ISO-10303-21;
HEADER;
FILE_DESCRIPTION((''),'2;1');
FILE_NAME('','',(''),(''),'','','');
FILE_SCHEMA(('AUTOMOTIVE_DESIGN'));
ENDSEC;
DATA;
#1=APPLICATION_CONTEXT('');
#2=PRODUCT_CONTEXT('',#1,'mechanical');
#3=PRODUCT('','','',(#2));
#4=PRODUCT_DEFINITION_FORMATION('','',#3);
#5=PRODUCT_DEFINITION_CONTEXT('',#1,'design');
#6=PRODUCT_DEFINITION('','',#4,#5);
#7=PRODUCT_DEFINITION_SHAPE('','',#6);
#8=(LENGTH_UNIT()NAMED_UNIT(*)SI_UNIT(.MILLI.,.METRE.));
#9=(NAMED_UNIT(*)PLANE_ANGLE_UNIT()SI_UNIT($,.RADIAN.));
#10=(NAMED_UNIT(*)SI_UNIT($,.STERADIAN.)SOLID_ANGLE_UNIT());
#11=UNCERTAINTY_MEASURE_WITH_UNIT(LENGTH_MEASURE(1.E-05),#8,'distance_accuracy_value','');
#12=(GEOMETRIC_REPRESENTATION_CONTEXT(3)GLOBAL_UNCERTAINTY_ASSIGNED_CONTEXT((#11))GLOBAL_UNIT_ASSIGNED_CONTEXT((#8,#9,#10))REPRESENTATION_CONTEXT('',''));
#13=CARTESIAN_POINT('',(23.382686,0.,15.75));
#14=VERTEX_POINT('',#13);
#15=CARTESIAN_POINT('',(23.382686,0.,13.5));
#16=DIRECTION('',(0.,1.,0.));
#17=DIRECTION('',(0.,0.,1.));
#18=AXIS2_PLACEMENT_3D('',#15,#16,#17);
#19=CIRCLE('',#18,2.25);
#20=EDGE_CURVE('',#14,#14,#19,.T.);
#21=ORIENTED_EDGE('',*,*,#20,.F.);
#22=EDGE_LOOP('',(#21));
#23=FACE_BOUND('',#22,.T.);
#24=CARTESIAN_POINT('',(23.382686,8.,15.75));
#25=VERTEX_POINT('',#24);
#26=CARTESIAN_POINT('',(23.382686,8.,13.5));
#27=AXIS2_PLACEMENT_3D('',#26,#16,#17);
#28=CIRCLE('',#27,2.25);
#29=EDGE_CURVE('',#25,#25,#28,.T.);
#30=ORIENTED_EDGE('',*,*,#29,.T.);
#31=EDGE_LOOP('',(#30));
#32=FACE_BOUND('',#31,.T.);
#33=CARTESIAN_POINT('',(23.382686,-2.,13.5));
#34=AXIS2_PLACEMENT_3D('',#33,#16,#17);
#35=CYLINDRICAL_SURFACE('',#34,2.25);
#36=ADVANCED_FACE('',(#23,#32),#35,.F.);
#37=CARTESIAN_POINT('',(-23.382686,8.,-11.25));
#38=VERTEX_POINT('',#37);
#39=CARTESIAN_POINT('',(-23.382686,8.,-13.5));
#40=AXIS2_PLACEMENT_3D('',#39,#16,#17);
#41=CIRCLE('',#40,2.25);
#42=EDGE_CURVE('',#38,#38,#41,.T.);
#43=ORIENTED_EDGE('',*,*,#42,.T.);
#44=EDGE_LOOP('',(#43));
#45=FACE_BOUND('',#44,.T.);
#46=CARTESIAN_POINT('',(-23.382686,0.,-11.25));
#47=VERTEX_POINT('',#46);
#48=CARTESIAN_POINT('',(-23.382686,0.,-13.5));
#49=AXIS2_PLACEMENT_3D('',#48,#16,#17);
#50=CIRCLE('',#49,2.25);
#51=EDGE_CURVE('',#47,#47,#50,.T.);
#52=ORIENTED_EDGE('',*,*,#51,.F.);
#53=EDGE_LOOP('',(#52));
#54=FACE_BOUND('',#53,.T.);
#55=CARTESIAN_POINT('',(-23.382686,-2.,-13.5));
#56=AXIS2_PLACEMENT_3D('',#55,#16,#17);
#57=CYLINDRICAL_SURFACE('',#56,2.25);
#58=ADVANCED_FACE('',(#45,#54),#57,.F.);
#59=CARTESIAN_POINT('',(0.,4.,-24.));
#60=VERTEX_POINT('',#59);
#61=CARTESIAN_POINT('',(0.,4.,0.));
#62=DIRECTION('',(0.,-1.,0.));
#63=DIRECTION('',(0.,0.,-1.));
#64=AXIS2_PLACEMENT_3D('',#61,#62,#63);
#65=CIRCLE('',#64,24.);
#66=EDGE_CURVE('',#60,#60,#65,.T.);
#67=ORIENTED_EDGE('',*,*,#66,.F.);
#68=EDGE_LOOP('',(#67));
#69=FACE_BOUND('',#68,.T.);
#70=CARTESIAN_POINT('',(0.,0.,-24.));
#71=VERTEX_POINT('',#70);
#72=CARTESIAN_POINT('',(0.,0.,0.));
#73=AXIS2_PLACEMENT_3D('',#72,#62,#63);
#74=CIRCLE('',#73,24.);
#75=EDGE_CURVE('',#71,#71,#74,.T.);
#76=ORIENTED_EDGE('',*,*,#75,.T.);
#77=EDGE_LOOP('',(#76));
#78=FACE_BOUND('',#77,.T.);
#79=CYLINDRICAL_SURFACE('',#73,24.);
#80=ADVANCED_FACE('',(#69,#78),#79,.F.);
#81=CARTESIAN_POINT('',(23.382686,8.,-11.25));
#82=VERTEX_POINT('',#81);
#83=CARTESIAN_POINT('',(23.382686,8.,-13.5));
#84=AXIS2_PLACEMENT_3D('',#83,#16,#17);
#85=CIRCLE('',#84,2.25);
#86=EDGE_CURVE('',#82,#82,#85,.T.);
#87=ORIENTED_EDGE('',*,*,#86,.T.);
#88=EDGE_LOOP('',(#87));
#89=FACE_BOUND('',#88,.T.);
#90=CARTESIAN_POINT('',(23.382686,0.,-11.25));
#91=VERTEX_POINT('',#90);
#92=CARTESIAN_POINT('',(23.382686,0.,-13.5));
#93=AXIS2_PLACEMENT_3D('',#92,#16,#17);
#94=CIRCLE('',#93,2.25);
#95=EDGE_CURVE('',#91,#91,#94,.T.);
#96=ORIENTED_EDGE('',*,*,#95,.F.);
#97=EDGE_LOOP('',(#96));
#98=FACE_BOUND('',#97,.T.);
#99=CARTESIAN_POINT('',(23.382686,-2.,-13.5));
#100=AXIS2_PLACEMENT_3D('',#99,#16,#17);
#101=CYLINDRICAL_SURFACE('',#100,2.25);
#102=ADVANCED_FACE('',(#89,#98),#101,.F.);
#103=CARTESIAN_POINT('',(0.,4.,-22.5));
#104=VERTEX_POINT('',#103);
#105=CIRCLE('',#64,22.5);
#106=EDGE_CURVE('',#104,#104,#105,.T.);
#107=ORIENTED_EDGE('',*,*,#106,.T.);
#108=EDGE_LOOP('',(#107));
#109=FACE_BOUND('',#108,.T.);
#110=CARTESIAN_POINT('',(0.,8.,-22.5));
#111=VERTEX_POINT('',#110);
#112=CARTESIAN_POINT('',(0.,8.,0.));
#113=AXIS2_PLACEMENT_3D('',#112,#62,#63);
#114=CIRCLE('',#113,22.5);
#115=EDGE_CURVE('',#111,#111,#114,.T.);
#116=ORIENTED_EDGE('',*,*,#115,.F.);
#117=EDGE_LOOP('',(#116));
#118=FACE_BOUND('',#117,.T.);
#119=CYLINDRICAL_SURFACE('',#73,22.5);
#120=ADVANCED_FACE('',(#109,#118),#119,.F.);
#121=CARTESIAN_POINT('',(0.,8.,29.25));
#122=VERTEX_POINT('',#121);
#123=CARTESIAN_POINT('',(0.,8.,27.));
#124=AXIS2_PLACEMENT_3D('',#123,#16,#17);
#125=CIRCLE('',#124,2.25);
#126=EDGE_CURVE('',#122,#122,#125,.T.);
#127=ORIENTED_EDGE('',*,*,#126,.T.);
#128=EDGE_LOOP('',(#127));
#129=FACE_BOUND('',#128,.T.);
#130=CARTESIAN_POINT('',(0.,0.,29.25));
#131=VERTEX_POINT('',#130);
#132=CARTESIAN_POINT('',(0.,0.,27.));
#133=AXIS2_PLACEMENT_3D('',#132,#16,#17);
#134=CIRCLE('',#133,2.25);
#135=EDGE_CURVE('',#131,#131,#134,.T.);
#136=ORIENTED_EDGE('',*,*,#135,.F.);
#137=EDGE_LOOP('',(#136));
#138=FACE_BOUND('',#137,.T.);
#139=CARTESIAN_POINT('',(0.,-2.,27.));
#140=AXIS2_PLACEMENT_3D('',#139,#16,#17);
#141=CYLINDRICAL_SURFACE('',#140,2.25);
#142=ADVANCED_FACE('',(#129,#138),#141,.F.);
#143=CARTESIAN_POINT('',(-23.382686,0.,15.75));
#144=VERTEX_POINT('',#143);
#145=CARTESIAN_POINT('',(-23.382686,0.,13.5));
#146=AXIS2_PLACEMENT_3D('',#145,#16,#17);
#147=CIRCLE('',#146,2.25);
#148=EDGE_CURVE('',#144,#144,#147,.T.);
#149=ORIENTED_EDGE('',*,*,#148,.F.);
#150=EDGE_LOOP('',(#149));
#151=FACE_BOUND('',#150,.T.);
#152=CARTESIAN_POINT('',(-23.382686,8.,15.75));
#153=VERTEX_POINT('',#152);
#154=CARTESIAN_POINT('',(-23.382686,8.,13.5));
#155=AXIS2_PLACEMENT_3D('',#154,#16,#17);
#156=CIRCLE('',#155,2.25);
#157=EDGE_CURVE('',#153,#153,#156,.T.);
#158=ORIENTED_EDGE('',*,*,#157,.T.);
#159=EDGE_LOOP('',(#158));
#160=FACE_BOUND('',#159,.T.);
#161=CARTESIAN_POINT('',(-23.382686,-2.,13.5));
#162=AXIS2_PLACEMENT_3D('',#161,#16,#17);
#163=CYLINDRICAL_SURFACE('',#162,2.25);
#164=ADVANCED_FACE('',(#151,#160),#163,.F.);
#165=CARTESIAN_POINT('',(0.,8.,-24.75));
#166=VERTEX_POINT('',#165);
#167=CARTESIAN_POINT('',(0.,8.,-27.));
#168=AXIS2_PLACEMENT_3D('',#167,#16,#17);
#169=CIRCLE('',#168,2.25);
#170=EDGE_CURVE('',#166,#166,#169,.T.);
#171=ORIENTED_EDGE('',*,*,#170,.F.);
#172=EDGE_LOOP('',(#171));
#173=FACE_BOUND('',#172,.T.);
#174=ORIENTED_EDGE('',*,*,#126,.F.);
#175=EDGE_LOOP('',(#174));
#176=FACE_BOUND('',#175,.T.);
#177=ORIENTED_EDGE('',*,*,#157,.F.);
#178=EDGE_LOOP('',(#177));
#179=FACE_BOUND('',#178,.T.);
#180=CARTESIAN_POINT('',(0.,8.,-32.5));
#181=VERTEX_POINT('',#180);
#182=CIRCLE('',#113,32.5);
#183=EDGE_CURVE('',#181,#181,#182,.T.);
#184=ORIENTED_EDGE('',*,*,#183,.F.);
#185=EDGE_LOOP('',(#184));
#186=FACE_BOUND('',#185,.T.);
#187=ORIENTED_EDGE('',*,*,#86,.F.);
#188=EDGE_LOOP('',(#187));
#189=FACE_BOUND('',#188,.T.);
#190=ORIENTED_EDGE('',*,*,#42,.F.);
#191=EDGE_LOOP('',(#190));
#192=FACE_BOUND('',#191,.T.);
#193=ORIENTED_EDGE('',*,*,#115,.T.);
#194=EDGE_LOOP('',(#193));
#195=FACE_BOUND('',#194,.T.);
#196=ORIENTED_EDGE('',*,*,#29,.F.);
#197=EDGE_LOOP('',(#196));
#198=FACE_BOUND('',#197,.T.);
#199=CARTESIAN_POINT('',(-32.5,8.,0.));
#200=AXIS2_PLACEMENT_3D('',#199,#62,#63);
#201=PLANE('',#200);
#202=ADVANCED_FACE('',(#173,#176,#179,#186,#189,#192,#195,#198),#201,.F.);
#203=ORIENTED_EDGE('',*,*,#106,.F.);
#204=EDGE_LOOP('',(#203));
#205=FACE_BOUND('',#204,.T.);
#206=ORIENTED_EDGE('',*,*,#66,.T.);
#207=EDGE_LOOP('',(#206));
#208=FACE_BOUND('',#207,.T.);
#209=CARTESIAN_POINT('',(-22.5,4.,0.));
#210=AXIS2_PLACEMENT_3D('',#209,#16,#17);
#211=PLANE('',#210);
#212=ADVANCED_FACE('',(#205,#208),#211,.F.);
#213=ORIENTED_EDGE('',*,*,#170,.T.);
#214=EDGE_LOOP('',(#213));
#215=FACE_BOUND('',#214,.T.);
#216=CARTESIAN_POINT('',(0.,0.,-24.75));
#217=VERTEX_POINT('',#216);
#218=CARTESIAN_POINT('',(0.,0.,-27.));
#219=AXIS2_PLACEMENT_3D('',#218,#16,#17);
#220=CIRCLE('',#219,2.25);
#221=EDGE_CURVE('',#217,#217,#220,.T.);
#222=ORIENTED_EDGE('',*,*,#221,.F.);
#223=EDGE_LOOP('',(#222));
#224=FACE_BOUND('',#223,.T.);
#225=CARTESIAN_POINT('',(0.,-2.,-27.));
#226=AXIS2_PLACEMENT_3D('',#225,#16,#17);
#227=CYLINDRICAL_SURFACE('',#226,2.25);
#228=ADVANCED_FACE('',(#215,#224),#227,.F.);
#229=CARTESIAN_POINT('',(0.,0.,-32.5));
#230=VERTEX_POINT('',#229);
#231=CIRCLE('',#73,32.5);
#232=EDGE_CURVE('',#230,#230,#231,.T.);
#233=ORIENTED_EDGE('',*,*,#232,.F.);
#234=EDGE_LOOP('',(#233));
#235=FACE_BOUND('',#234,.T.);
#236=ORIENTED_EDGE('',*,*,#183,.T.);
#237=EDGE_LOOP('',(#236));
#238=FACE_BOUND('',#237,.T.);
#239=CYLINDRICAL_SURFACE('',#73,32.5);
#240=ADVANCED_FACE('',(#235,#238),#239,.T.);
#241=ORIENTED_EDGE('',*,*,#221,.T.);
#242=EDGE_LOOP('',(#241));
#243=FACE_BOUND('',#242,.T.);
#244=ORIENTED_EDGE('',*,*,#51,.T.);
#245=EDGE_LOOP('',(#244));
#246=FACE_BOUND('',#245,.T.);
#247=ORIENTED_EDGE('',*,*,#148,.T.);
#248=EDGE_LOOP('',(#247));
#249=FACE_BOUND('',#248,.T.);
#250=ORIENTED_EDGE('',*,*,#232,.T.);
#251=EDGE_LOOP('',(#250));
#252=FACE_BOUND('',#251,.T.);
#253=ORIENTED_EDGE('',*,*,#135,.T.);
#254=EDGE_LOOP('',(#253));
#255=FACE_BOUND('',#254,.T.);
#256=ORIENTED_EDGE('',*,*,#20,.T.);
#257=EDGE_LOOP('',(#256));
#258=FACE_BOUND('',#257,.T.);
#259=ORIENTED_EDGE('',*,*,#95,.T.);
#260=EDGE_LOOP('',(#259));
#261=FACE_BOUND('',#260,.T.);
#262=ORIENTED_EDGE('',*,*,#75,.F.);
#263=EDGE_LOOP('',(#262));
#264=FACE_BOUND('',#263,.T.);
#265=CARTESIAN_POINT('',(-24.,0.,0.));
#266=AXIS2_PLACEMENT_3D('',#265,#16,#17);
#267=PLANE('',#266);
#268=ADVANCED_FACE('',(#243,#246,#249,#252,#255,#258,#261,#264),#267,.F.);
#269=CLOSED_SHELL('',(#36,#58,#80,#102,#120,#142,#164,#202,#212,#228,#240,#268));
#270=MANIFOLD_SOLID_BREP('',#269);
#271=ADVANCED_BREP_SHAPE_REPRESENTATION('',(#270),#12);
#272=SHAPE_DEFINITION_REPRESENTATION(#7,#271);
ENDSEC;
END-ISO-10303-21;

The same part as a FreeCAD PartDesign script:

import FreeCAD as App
import Part
import Sketcher
Q = App.Units.Quantity

doc = App.newDocument("Part")
params = doc.addObject("Spreadsheet::Sheet", "Params")
for row, (alias, value) in enumerate([
    ("sketch1_width", "10 mm"),
    ("sketch1_height", "8 mm"),
    ("sketch1_width2", "8.5 mm"),
    ("revolution_angle", "360 deg"),
    ("sketch2_diameter", "4.5 mm"),
    ("pocket1_length", "10 mm"),
], start=1):
    params.set(f"A{row}", alias)
    params.set(f"B{row}", "=" + value)
    params.setAlias(f"B{row}", alias)

body = doc.addObject("PartDesign::Body", "Body")

# Sketch on XY plane
sketch1 = body.newObject("Sketcher::SketchObject", "Sketch")
sketch1.AttachmentSupport = (doc.getObject("XY_Plane"), [""])
sketch1.MapMode = "FlatFace"
sketch1.addGeometry([
    Part.LineSegment(App.Vector(-32.5, 8, 0), App.Vector(-32.5, 0, 0)),  # 0
    Part.LineSegment(App.Vector(-32.5, 0, 0), App.Vector(-24, 0, 0)),  # 1
    Part.LineSegment(App.Vector(-24, 0, 0), App.Vector(-24, 4, 0)),  # 2
    Part.LineSegment(App.Vector(-24, 4, 0), App.Vector(-22.5, 4, 0)),  # 3
    Part.LineSegment(App.Vector(-22.5, 4, 0), App.Vector(-22.5, 8, 0)),  # 4
    Part.LineSegment(App.Vector(-22.5, 8, 0), App.Vector(-32.5, 8, 0)),  # 5
], False)
sketch1.addConstraint([
    Sketcher.Constraint("Coincident", 0, 2, 1, 1),
    Sketcher.Constraint("Coincident", 1, 2, 2, 1),
    Sketcher.Constraint("Coincident", 2, 2, 3, 1),
    Sketcher.Constraint("Coincident", 3, 2, 4, 1),
    Sketcher.Constraint("Coincident", 4, 2, 5, 1),
    Sketcher.Constraint("Coincident", 5, 2, 0, 1),
    Sketcher.Constraint("Vertical", 0),
    Sketcher.Constraint("Horizontal", 1),
    Sketcher.Constraint("Vertical", 2),
    Sketcher.Constraint("Horizontal", 3),
    Sketcher.Constraint("Vertical", 4),
    Sketcher.Constraint("Horizontal", 5),
    Sketcher.Constraint("PointOnObject", 0, 2, -1),
    Sketcher.Constraint("Equal", 2, 4),
    Sketcher.Constraint("DistanceX", 5, 2, 5, 1, Q("10 mm")),
    Sketcher.Constraint("DistanceY", 0, 2, 0, 1, Q("8 mm")),
    Sketcher.Constraint("DistanceX", 1, 1, 1, 2, Q("8.5 mm")),
    Sketcher.Constraint("DistanceX", 1, 2, -1, 1, Q("24 mm")),
])
sketch1.setExpression("Constraints[14]", "Params.sketch1_width")
sketch1.setExpression("Constraints[15]", "Params.sketch1_height")
sketch1.setExpression("Constraints[16]", "Params.sketch1_width2")
revolution = body.newObject("PartDesign::Revolution", "Revolution")
revolution.Profile = sketch1
revolution.ReferenceAxis = (sketch1, ["V_Axis"])
revolution.setExpression("Angle", "Params.revolution_angle")

# Sketch on XZ plane
sketch2 = body.newObject("Sketcher::SketchObject", "Sketch001")
sketch2.AttachmentSupport = (doc.getObject("XZ_Plane"), [""])
sketch2.MapMode = "FlatFace"
sketch2.AttachmentOffset = App.Placement(App.Vector(0, 0, -8), App.Rotation())
sketch2.addGeometry([
    Part.Circle(App.Vector(0, -27, 0), App.Vector(0, 0, 1), 2.2),  # 0
    Part.Circle(App.Vector(23.4, -13.5, 0), App.Vector(0, 0, 1), 2.2),  # 1
    Part.Circle(App.Vector(23.4, 13.5, 0), App.Vector(0, 0, 1), 2.2),  # 2
    Part.Circle(App.Vector(0, 27, 0), App.Vector(0, 0, 1), 2.2),  # 3
    Part.Circle(App.Vector(-23.4, 13.5, 0), App.Vector(0, 0, 1), 2.2),  # 4
    Part.Circle(App.Vector(-23.4, -13.5, 0), App.Vector(0, 0, 1), 2.2),  # 5
], False)
sketch2.addConstraint([
    Sketcher.Constraint("Equal", 0, 1),
    Sketcher.Constraint("Equal", 1, 2),
    Sketcher.Constraint("Equal", 2, 3),
    Sketcher.Constraint("Equal", 3, 4),
    Sketcher.Constraint("Equal", 4, 5),
    Sketcher.Constraint("Symmetric", 0, 3, 3, 3, -1, 1),
    Sketcher.Constraint("Symmetric", 1, 3, 4, 3, -1, 1),
    Sketcher.Constraint("Symmetric", 2, 3, 5, 3, -1, 1),
    Sketcher.Constraint("Symmetric", 2, 3, 4, 3, -2),
    Sketcher.Constraint("PointOnObject", 0, 3, -2),
    Sketcher.Constraint("Diameter", 0, Q("4.5 mm")),
    Sketcher.Constraint("DistanceY", 0, 3, -1, 1, Q("27 mm")),
    Sketcher.Constraint("DistanceY", 1, 3, 2, 3, Q("27 mm")),
    Sketcher.Constraint("DistanceX", 4, 3, 2, 3, Q("46.765372 mm")),
])
sketch2.setExpression("Constraints[10]", "Params.sketch2_diameter")
pocket1 = body.newObject("PartDesign::Pocket", "Pocket")
pocket1.Profile = sketch2
pocket1.setExpression("Length", "Params.pocket1_length")
pocket1.Reversed = True

doc.recompute()
